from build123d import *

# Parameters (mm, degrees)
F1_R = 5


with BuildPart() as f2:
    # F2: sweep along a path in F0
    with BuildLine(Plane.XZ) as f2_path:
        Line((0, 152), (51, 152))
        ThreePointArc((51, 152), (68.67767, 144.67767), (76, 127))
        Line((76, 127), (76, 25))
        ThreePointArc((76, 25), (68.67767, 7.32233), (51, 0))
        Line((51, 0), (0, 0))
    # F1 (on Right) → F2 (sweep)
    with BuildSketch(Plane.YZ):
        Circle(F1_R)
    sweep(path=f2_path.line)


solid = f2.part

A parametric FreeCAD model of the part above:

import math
import FreeCAD as App
import Part
import Sketcher

V = App.Vector
Q = App.Units.Quantity

doc = App.newDocument("Part")
params = doc.addObject("Spreadsheet::Sheet", "Params")
for row, (alias, value) in enumerate([
    ("sketch1_diameter", "10 mm"),
    ("sketch2_radius", "24.999998 mm"),
    ("sketch2_width", "51 mm"),
    ("sketch2_height", "102 mm"),
], start=1):
    params.set(f"A{row}", alias)
    params.set(f"B{row}", "=" + value)
    params.setAlias(f"B{row}", alias)

body = doc.addObject("PartDesign::Body", "Body")

# Sketch on YZ plane
sketch1 = body.newObject("Sketcher::SketchObject", "Sketch")
sketch1.AttachmentSupport = (doc.getObject("YZ_Plane"), [""])
sketch1.MapMode = "FlatFace"
sketch1.addGeometry(Part.Circle(V(0, 0, 0), V(0, 0, 1), 5), False)
sketch1.addConstraint([
    Sketcher.Constraint("Coincident", 0, 3, -1, 1),
    Sketcher.Constraint("Diameter", 0, Q("10 mm")),
])
sketch1.setExpression("Constraints[1]", "Params.sketch1_diameter")

# Sketch on XZ plane
sketch2 = body.newObject("Sketcher::SketchObject", "Sketch001")
sketch2.AttachmentSupport = (doc.getObject("XZ_Plane"), [""])
sketch2.MapMode = "FlatFace"
sketch2.addGeometry([
    Part.LineSegment(V(0, 152, 0), V(51, 152, 0)),  # 0
    Part.ArcOfCircle(Part.Circle(V(51, 127, 0), V(0, 0, 1), 25), math.radians(0), math.radians(90)),  # 1
    Part.LineSegment(V(76, 127, 0), V(76, 25, 0)),  # 2
    Part.ArcOfCircle(Part.Circle(V(51, 25, 0), V(0, 0, 1), 25), math.radians(-90), math.radians(0)),  # 3
    Part.LineSegment(V(51, 0, 0), V(0, 0, 0)),  # 4
], False)
sketch2.addConstraint([
    Sketcher.Constraint("Tangent", 0, 2, 1, 2),
    Sketcher.Constraint("Tangent", 1, 1, 2, 1),
    Sketcher.Constraint("Tangent", 2, 2, 3, 2),
    Sketcher.Constraint("Tangent", 3, 1, 4, 1),
    Sketcher.Constraint("Horizontal", 0),
    Sketcher.Constraint("Vertical", 2),
    Sketcher.Constraint("Horizontal", 4),
    Sketcher.Constraint("Coincident", 4, 2, -1, 1),
    Sketcher.Constraint("Equal", 1, 3),
    Sketcher.Constraint("PointOnObject", 0, 1, -2),
    Sketcher.Constraint("Radius", 1, Q("24.999998 mm")),
    Sketcher.Constraint("DistanceX", 0, 1, 0, 2, Q("51 mm")),
    Sketcher.Constraint("DistanceY", 2, 2, 2, 1, Q("102 mm")),
])
sketch2.setExpression("Constraints[10]", "Params.sketch2_radius")
sketch2.setExpression("Constraints[11]", "Params.sketch2_width")
sketch2.setExpression("Constraints[12]", "Params.sketch2_height")
doc.recompute()

additivepipe = body.newObject("PartDesign::AdditivePipe", "AdditivePipe")
additivepipe.Profile = sketch1
additivepipe.Spine = (sketch2, ["Edge1", "Edge2", "Edge3", "Edge4", "Edge5"])

doc.recompute()
